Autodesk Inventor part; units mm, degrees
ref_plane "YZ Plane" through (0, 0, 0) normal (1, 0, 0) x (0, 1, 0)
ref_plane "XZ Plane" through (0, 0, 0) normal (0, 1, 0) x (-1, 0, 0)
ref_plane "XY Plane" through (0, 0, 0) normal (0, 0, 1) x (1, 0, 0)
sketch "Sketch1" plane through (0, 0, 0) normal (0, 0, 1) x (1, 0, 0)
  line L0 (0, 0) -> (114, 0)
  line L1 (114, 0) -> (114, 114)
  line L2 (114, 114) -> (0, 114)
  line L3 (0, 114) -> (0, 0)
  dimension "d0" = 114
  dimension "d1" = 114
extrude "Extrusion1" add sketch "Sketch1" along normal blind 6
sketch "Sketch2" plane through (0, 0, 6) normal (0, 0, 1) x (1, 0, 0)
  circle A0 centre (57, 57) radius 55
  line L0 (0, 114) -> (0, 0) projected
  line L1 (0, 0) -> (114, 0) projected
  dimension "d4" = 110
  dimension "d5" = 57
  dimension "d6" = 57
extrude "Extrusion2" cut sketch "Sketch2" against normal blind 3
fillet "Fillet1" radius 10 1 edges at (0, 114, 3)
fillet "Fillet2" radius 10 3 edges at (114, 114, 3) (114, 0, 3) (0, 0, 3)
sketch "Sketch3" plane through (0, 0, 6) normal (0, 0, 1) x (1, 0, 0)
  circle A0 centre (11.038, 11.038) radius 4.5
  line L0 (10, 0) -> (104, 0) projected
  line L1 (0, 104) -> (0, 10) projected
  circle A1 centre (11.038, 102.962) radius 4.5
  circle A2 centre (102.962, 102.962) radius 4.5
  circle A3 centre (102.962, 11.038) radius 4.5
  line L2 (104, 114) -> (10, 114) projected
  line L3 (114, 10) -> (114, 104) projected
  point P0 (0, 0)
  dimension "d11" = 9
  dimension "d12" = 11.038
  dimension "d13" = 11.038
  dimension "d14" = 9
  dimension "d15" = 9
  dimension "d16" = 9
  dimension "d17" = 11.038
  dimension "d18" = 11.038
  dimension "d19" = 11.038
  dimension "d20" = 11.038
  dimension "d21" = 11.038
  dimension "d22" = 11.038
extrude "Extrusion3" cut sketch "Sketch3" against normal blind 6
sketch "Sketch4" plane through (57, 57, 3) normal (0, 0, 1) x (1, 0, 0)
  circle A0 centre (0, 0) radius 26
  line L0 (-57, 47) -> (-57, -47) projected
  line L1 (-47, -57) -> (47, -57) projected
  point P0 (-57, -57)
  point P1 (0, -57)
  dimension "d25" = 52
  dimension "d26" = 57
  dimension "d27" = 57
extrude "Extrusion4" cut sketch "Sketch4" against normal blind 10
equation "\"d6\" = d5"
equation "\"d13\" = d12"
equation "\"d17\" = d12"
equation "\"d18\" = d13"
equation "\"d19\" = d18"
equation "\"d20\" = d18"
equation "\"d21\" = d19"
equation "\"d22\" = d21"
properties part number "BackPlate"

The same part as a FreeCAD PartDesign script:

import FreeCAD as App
import Part
import Sketcher

V = App.Vector
Q = App.Units.Quantity


def edges_at(feature, points):
    """Names of the edges that pass closest to the given points."""
    edges = feature.Shape.Edges
    near = lambda p: min(range(len(edges)), key=lambda i: edges[i].distToShape(Part.Vertex(*p))[0])
    return sorted({f"Edge{near(p) + 1}" for p in points})

doc = App.newDocument("Part")
params = doc.addObject("Spreadsheet::Sheet", "Params")
for row, (alias, value) in enumerate([
    ("sketch1_width", "114 mm"),
    ("pad1_length", "6 mm"),
    ("sketch2_diameter", "110 mm"),
    ("pocket1_length", "3 mm"),
    ("fillet_radius", "10 mm"),
    ("fillet2_radius", "10 mm"),
    ("sketch3_diameter", "9 mm"),
    ("pocket2_length", "6 mm"),
    ("sketch4_diameter", "52 mm"),
    ("pocket3_length", "10 mm"),
], start=1):
    params.set(f"A{row}", alias)
    params.set(f"B{row}", "=" + value)
    params.setAlias(f"B{row}", alias)

body = doc.addObject("PartDesign::Body", "Body")

sketch1 = body.newObject("Sketcher::SketchObject", "Sketch")
sketch1.AttachmentSupport = (doc.getObject("XY_Plane"), [""])
sketch1.MapMode = "FlatFace"
sketch1.addGeometry([
    Part.LineSegment(V(0, 114, 0), V(0, 0, 0)),
    Part.LineSegment(V(0, 0, 0), V(114, 0, 0)),
    Part.LineSegment(V(114, 0, 0), V(114, 114, 0)),
    Part.LineSegment(V(114, 114, 0), V(0, 114, 0)),
], False)
sketch1.addConstraint([
    Sketcher.Constraint("Coincident", 0, 2, 1, 1),
    Sketcher.Constraint("Coincident", 1, 2, 2, 1),
    Sketcher.Constraint("Coincident", 2, 2, 3, 1),
    Sketcher.Constraint("Coincident", 3, 2, 0, 1),
    Sketcher.Constraint("Vertical", 0),
    Sketcher.Constraint("Horizontal", 1),
    Sketcher.Constraint("Vertical", 2),
    Sketcher.Constraint("Horizontal", 3),
    Sketcher.Constraint("Coincident", 0, 2, -1, 1),
    Sketcher.Constraint("Equal", 3, 0),
    Sketcher.Constraint("DistanceX", 1, 1, 1, 2, Q("114 mm")),
])
sketch1.setExpression("Constraints[10]", "Params.sketch1_width")
pad1 = body.newObject("PartDesign::Pad", "Pad")
pad1.Profile = sketch1
pad1.setExpression("Length", "Params.pad1_length")

sketch2 = body.newObject("Sketcher::SketchObject", "Sketch001")
sketch2.AttachmentSupport = (doc.getObject("XY_Plane"), [""])
sketch2.MapMode = "FlatFace"
sketch2.AttachmentOffset = App.Placement(V(0, 0, 6), App.Rotation())
sketch2.addGeometry(Part.Circle(V(57, 57, 0), V(0, 0, 1), 55), False)
sketch2.addConstraint([
    Sketcher.Constraint("Diameter", 0, Q("110 mm")),
    Sketcher.Constraint("DistanceX", -1, 1, 0, 3, Q("57 mm")),
    Sketcher.Constraint("DistanceY", -1, 1, 0, 3, Q("57 mm")),
])
sketch2.setExpression("Constraints[0]", "Params.sketch2_diameter")
pocket1 = body.newObject("PartDesign::Pocket", "Pocket")
pocket1.Profile = sketch2
pocket1.setExpression("Length", "Params.pocket1_length")
doc.recompute()

fillet = body.newObject("PartDesign::Fillet", "Fillet")
fillet.Base = (pocket1, edges_at(pocket1, [(0, 114, 3)]))
fillet.setExpression("Radius", "Params.fillet_radius")
doc.recompute()

fillet2 = body.newObject("PartDesign::Fillet", "Fillet001")
fillet2.Base = (fillet, edges_at(fillet, [(114, 114, 3), (114, 0, 3), (0, 0, 3)]))
fillet2.setExpression("Radius", "Params.fillet2_radius")

sketch3 = body.newObject("Sketcher::SketchObject", "Sketch002")
sketch3.AttachmentSupport = (doc.getObject("XY_Plane"), [""])
sketch3.MapMode = "FlatFace"
sketch3.AttachmentOffset = App.Placement(V(0, 0, 6), App.Rotation())
sketch3.addGeometry([
    Part.Circle(V(11, 11, 0), V(0, 0, 1), 4.5),
    Part.Circle(V(11, 103, 0), V(0, 0, 1), 4.5),
    Part.Circle(V(103, 103, 0), V(0, 0, 1), 4.5),
    Part.Circle(V(103, 11, 0), V(0, 0, 1), 4.5),
], False)
sketch3.addConstraint([
    Sketcher.Constraint("Equal", 0, 1),
    Sketcher.Constraint("Equal", 1, 2),
    Sketcher.Constraint("Equal", 2, 3),
    Sketcher.Constraint("Horizontal", 1, 3, 2, 3),
    Sketcher.Constraint("Horizontal", 0, 3, 3, 3),
    Sketcher.Constraint("Vertical", 0, 3, 1, 3),
    Sketcher.Constraint("Vertical", 2, 3, 3, 3),
    Sketcher.Constraint("Diameter", 0, Q("9 mm")),
    Sketcher.Constraint("DistanceX", -1, 1, 0, 3, Q("11.038 mm")),
    Sketcher.Constraint("DistanceY", -1, 1, 0, 3, Q("11.038 mm")),
    Sketcher.Constraint("DistanceY", -1, 1, 1, 3, Q("102.962 mm")),
    Sketcher.Constraint("DistanceX", -1, 1, 2, 3, Q("102.962 mm")),
])
sketch3.setExpression("Constraints[7]", "Params.sketch3_diameter")
pocket2 = body.newObject("PartDesign::Pocket", "Pocket001")
pocket2.Profile = sketch3
pocket2.setExpression("Length", "Params.pocket2_length")

sketch4 = body.newObject("Sketcher::SketchObject", "Sketch003")
sketch4.AttachmentSupport = (doc.getObject("XY_Plane"), [""])
sketch4.MapMode = "FlatFace"
sketch4.AttachmentOffset = App.Placement(V(0, 0, 3), App.Rotation())
sketch4.addGeometry(Part.Circle(V(57, 57, 0), V(0, 0, 1), 26), False)
sketch4.addConstraint([
    Sketcher.Constraint("Diameter", 0, Q("52 mm")),
    Sketcher.Constraint("DistanceX", -1, 1, 0, 3, Q("57 mm")),
    Sketcher.Constraint("DistanceY", -1, 1, 0, 3, Q("57 mm")),
])
sketch4.setExpression("Constraints[0]", "Params.sketch4_diameter")
pocket3 = body.newObject("PartDesign::Pocket", "Pocket002")
pocket3.Profile = sketch4
pocket3.setExpression("Length", "Params.pocket3_length")

doc.recompute()
